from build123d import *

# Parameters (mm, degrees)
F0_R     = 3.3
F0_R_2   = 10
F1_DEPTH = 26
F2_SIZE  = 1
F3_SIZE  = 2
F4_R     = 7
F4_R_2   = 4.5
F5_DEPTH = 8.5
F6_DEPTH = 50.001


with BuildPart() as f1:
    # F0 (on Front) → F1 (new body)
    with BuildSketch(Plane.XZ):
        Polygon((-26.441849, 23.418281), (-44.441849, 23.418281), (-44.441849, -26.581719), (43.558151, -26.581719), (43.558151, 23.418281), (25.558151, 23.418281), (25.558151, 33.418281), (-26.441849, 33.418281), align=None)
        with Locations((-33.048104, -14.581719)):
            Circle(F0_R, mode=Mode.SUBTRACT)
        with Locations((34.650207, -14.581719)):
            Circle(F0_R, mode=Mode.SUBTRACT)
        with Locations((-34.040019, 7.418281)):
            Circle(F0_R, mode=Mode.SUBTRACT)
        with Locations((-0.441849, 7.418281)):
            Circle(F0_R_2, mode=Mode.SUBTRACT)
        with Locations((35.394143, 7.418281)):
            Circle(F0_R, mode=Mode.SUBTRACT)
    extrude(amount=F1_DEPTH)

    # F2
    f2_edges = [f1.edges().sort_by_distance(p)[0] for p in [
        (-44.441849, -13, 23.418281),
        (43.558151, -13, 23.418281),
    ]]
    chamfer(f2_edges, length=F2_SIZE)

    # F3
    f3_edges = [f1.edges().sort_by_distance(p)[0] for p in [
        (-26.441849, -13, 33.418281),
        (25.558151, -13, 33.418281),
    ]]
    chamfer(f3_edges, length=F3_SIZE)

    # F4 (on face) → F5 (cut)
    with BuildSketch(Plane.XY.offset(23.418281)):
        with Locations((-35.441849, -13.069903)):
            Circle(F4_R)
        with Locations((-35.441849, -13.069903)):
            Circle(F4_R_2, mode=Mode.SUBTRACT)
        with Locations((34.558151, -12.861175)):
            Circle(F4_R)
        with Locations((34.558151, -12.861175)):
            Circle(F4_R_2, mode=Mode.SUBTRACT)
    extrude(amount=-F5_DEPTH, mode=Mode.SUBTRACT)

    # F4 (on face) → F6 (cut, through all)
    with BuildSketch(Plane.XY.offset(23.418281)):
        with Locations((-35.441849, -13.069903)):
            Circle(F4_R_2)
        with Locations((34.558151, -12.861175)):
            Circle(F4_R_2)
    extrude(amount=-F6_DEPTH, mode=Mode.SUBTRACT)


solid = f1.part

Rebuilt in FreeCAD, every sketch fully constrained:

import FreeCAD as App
import Part
import Sketcher

V = App.Vector
Q = App.Units.Quantity


def edges_at(feature, points):
    """Names of the edges that pass closest to the given points."""
    edges = feature.Shape.Edges
    near = lambda p: min(range(len(edges)), key=lambda i: edges[i].distToShape(Part.Vertex(*p))[0])
    return sorted({f"Edge{near(p) + 1}" for p in points})

doc = App.newDocument("Part")
params = doc.addObject("Spreadsheet::Sheet", "Params")
for row, (alias, value) in enumerate([
    ("sketch1_diameter", "20 mm"),
    ("sketch1_diameter2", "6.6 mm"),
    ("sketch1_width", "18 mm"),
    ("sketch1_width2", "88 mm"),
    ("sketch1_height", "50 mm"),
    ("pad1_length", "26 mm"),
    ("chamfer_size", "1 mm"),
    ("chamfer2_size", "2 mm"),
    ("sketch2_diameter", "14 mm"),
    ("sketch2_diameter2", "9 mm"),
    ("pocket1_length", "8.5 mm"),
    ("sketch3_diameter", "9 mm"),
], start=1):
    params.set(f"A{row}", alias)
    params.set(f"B{row}", "=" + value)
    params.setAlias(f"B{row}", alias)

body = doc.addObject("PartDesign::Body", "Body")

sketch1 = body.newObject("Sketcher::SketchObject", "Sketch")
sketch1.AttachmentSupport = (doc.getObject("XZ_Plane"), [""])
sketch1.MapMode = "FlatFace"
sketch1.addGeometry([
    Part.LineSegment(V(-26.4, 23.4, 0), V(-44.4, 23.4, 0)),
    Part.LineSegment(V(-44.4, 23.4, 0), V(-44.4, -26.6, 0)),
    Part.LineSegment(V(-44.4, -26.6, 0), V(43.6, -26.6, 0)),
    Part.LineSegment(V(43.6, -26.6, 0), V(43.6, 23.4, 0)),
    Part.LineSegment(V(43.6, 23.4, 0), V(25.6, 23.4, 0)),
    Part.LineSegment(V(25.6, 23.4, 0), V(25.6, 33.4, 0)),
    Part.LineSegment(V(25.6, 33.4, 0), V(-26.4, 33.4, 0)),
    Part.LineSegment(V(-26.4, 33.4, 0), V(-26.4, 23.4, 0)),
    Part.Circle(V(-33, -14.6, 0), V(0, 0, 1), 3.3),
    Part.Circle(V(34.7, -14.6, 0), V(0, 0, 1), 3.3),
    Part.Circle(V(-34, 7.4, 0), V(0, 0, 1), 3.3),
    Part.Circle(V(-0.4, 7.4, 0), V(0, 0, 1), 10),
    Part.Circle(V(35.4, 7.4, 0), V(0, 0, 1), 3.3),
], False)
sketch1.addConstraint([
    Sketcher.Constraint("Coincident", 0, 2, 1, 1),
    Sketcher.Constraint("Coincident", 1, 2, 2, 1),
    Sketcher.Constraint("Coincident", 2, 2, 3, 1),
    Sketcher.Constraint("Coincident", 3, 2, 4, 1),
    Sketcher.Constraint("Coincident", 4, 2, 5, 1),
    Sketcher.Constraint("Coincident", 5, 2, 6, 1),
    Sketcher.Constraint("Coincident", 6, 2, 7, 1),
    Sketcher.Constraint("Coincident", 7, 2, 0, 1),
    Sketcher.Constraint("Horizontal", 0),
    Sketcher.Constraint("Vertical", 1),
    Sketcher.Constraint("Horizontal", 2),
    Sketcher.Constraint("Vertical", 3),
    Sketcher.Constraint("Horizontal", 4),
    Sketcher.Constraint("Vertical", 5),
    Sketcher.Constraint("Horizontal", 6),
    Sketcher.Constraint("Vertical", 7),
    Sketcher.Constraint("Equal", 8, 9),
    Sketcher.Constraint("Equal", 9, 10),
    Sketcher.Constraint("Equal", 10, 12),
    Sketcher.Constraint("Horizontal", 8, 3, 9, 3),
    Sketcher.Constraint("Horizontal", 10, 3, 11, 3),
    Sketcher.Constraint("Horizontal", 11, 3, 12, 3),
    Sketcher.Constraint("Horizontal", 0, 2, 3, 2),
    Sketcher.Constraint("Equal", 0, 4),
    Sketcher.Constraint("Diameter", 11, Q("20 mm")),
    Sketcher.Constraint("Diameter", 8, Q("6.6 mm")),
    Sketcher.Constraint("DistanceX", 0, 2, 0, 1, Q("18 mm")),
    Sketcher.Constraint("DistanceX", 2, 1, 2, 2, Q("88 mm")),
    Sketcher.Constraint("DistanceY", 1, 2, 1, 1, Q("50 mm")),
    Sketcher.Constraint("DistanceY", 5, 1, 5, 2, Q("10 mm")),
    Sketcher.Constraint("DistanceY", 8, 3, 10, 3, Q("22 mm")),
    Sketcher.Constraint("DistanceY", 10, 3, 0, 2, Q("16 mm")),
    Sketcher.Constraint("DistanceX", 0, 2, 11, 3, Q("44 mm")),
    Sketcher.Constraint("DistanceY", 8, 3, -1, 1, Q("14.581719 mm")),
    Sketcher.Constraint("DistanceX", 10, 3, -1, 1, Q("34.040019 mm")),
    Sketcher.Constraint("DistanceX", 11, 3, -1, 1, Q("0.441849 mm")),
    Sketcher.Constraint("DistanceX", 8, 3, 9, 3, Q("67.698311 mm")),
    Sketcher.Constraint("DistanceX", 11, 3, 12, 3, Q("35.835992 mm")),
    Sketcher.Constraint("DistanceX", 8, 3, -1, 1, Q("33.048104 mm")),
])
sketch1.setExpression("Constraints[24]", "Params.sketch1_diameter")
sketch1.setExpression("Constraints[25]", "Params.sketch1_diameter2")
sketch1.setExpression("Constraints[26]", "Params.sketch1_width")
sketch1.setExpression("Constraints[27]", "Params.sketch1_width2")
sketch1.setExpression("Constraints[28]", "Params.sketch1_height")
pad1 = body.newObject("PartDesign::Pad", "Pad")
pad1.Profile = sketch1
pad1.setExpression("Length", "Params.pad1_length")
doc.recompute()

chamfer = body.newObject("PartDesign::Chamfer", "Chamfer")
chamfer.Base = (pad1, edges_at(pad1, [(-44.442, -13, 23.418), (43.558, -13, 23.418)]))
chamfer.setExpression("Size", "Params.chamfer_size")
doc.recompute()

chamfer2 = body.newObject("PartDesign::Chamfer", "Chamfer001")
chamfer2.Base = (chamfer, edges_at(chamfer, [(-26.442, -13, 33.418), (25.558, -13, 33.418)]))
chamfer2.setExpression("Size", "Params.chamfer2_size")

sketch2 = body.newObject("Sketcher::SketchObject", "Sketch001")
sketch2.AttachmentSupport = (doc.getObject("XY_Plane"), [""])
sketch2.MapMode = "FlatFace"
sketch2.AttachmentOffset = App.Placement(V(0, 0, 23.418281), App.Rotation())
sketch2.addGeometry([
    Part.Circle(V(-35.4, -13.1, 0), V(0, 0, 1), 7),
    Part.Circle(V(-35.4, -13.1, 0), V(0, 0, 1), 4.5),
    Part.Circle(V(34.6, -12.9, 0), V(0, 0, 1), 7),
    Part.Circle(V(34.6, -12.9, 0), V(0, 0, 1), 4.5),
], False)
sketch2.addConstraint([
    Sketcher.Constraint("Coincident", 1, 3, 0, 3),
    Sketcher.Constraint("Coincident", 3, 3, 2, 3),
    Sketcher.Constraint("Equal", 0, 2),
    Sketcher.Constraint("Equal", 1, 3),
    Sketcher.Constraint("Diameter", 0, Q("14 mm")),
    Sketcher.Constraint("Diameter", 1, Q("9 mm")),
    Sketcher.Constraint("DistanceX", 0, 3, 2, 3, Q("70 mm")),
    Sketcher.Constraint("DistanceX", 0, 3, -1, 1, Q("35.441849 mm")),
    Sketcher.Constraint("DistanceY", 0, 3, 2, 3, Q("0.208728 mm")),
    Sketcher.Constraint("DistanceY", 0, 3, -1, 1, Q("13.069903 mm")),
])
sketch2.setExpression("Constraints[4]", "Params.sketch2_diameter")
sketch2.setExpression("Constraints[5]", "Params.sketch2_diameter2")
pocket1 = body.newObject("PartDesign::Pocket", "Pocket")
pocket1.Profile = sketch2
pocket1.setExpression("Length", "Params.pocket1_length")

sketch3 = body.newObject("Sketcher::SketchObject", "Sketch002")
sketch3.AttachmentSupport = (doc.getObject("XY_Plane"), [""])
sketch3.MapMode = "FlatFace"
sketch3.AttachmentOffset = App.Placement(V(0, 0, 23.418281), App.Rotation())
sketch3.addGeometry([
    Part.Circle(V(-35.4, -13.1, 0), V(0, 0, 1), 4.5),
    Part.Circle(V(34.6, -12.9, 0), V(0, 0, 1), 4.5),
], False)
sketch3.addConstraint([
    Sketcher.Constraint("Equal", 0, 1),
    Sketcher.Constraint("Diameter", 0, Q("9 mm")),
    Sketcher.Constraint("DistanceX", 0, 3, 1, 3, Q("70 mm")),
    Sketcher.Constraint("DistanceX", 0, 3, -1, 1, Q("35.441849 mm")),
    Sketcher.Constraint("DistanceY", 0, 3, 1, 3, Q("0.208728 mm")),
    Sketcher.Constraint("DistanceY", 0, 3, -1, 1, Q("13.069903 mm")),
])
sketch3.setExpression("Constraints[1]", "Params.sketch3_diameter")
pocket2 = body.newObject("PartDesign::Pocket", "Pocket001")
pocket2.Profile = sketch3
pocket2.Type = "ThroughAll"

doc.recompute()
